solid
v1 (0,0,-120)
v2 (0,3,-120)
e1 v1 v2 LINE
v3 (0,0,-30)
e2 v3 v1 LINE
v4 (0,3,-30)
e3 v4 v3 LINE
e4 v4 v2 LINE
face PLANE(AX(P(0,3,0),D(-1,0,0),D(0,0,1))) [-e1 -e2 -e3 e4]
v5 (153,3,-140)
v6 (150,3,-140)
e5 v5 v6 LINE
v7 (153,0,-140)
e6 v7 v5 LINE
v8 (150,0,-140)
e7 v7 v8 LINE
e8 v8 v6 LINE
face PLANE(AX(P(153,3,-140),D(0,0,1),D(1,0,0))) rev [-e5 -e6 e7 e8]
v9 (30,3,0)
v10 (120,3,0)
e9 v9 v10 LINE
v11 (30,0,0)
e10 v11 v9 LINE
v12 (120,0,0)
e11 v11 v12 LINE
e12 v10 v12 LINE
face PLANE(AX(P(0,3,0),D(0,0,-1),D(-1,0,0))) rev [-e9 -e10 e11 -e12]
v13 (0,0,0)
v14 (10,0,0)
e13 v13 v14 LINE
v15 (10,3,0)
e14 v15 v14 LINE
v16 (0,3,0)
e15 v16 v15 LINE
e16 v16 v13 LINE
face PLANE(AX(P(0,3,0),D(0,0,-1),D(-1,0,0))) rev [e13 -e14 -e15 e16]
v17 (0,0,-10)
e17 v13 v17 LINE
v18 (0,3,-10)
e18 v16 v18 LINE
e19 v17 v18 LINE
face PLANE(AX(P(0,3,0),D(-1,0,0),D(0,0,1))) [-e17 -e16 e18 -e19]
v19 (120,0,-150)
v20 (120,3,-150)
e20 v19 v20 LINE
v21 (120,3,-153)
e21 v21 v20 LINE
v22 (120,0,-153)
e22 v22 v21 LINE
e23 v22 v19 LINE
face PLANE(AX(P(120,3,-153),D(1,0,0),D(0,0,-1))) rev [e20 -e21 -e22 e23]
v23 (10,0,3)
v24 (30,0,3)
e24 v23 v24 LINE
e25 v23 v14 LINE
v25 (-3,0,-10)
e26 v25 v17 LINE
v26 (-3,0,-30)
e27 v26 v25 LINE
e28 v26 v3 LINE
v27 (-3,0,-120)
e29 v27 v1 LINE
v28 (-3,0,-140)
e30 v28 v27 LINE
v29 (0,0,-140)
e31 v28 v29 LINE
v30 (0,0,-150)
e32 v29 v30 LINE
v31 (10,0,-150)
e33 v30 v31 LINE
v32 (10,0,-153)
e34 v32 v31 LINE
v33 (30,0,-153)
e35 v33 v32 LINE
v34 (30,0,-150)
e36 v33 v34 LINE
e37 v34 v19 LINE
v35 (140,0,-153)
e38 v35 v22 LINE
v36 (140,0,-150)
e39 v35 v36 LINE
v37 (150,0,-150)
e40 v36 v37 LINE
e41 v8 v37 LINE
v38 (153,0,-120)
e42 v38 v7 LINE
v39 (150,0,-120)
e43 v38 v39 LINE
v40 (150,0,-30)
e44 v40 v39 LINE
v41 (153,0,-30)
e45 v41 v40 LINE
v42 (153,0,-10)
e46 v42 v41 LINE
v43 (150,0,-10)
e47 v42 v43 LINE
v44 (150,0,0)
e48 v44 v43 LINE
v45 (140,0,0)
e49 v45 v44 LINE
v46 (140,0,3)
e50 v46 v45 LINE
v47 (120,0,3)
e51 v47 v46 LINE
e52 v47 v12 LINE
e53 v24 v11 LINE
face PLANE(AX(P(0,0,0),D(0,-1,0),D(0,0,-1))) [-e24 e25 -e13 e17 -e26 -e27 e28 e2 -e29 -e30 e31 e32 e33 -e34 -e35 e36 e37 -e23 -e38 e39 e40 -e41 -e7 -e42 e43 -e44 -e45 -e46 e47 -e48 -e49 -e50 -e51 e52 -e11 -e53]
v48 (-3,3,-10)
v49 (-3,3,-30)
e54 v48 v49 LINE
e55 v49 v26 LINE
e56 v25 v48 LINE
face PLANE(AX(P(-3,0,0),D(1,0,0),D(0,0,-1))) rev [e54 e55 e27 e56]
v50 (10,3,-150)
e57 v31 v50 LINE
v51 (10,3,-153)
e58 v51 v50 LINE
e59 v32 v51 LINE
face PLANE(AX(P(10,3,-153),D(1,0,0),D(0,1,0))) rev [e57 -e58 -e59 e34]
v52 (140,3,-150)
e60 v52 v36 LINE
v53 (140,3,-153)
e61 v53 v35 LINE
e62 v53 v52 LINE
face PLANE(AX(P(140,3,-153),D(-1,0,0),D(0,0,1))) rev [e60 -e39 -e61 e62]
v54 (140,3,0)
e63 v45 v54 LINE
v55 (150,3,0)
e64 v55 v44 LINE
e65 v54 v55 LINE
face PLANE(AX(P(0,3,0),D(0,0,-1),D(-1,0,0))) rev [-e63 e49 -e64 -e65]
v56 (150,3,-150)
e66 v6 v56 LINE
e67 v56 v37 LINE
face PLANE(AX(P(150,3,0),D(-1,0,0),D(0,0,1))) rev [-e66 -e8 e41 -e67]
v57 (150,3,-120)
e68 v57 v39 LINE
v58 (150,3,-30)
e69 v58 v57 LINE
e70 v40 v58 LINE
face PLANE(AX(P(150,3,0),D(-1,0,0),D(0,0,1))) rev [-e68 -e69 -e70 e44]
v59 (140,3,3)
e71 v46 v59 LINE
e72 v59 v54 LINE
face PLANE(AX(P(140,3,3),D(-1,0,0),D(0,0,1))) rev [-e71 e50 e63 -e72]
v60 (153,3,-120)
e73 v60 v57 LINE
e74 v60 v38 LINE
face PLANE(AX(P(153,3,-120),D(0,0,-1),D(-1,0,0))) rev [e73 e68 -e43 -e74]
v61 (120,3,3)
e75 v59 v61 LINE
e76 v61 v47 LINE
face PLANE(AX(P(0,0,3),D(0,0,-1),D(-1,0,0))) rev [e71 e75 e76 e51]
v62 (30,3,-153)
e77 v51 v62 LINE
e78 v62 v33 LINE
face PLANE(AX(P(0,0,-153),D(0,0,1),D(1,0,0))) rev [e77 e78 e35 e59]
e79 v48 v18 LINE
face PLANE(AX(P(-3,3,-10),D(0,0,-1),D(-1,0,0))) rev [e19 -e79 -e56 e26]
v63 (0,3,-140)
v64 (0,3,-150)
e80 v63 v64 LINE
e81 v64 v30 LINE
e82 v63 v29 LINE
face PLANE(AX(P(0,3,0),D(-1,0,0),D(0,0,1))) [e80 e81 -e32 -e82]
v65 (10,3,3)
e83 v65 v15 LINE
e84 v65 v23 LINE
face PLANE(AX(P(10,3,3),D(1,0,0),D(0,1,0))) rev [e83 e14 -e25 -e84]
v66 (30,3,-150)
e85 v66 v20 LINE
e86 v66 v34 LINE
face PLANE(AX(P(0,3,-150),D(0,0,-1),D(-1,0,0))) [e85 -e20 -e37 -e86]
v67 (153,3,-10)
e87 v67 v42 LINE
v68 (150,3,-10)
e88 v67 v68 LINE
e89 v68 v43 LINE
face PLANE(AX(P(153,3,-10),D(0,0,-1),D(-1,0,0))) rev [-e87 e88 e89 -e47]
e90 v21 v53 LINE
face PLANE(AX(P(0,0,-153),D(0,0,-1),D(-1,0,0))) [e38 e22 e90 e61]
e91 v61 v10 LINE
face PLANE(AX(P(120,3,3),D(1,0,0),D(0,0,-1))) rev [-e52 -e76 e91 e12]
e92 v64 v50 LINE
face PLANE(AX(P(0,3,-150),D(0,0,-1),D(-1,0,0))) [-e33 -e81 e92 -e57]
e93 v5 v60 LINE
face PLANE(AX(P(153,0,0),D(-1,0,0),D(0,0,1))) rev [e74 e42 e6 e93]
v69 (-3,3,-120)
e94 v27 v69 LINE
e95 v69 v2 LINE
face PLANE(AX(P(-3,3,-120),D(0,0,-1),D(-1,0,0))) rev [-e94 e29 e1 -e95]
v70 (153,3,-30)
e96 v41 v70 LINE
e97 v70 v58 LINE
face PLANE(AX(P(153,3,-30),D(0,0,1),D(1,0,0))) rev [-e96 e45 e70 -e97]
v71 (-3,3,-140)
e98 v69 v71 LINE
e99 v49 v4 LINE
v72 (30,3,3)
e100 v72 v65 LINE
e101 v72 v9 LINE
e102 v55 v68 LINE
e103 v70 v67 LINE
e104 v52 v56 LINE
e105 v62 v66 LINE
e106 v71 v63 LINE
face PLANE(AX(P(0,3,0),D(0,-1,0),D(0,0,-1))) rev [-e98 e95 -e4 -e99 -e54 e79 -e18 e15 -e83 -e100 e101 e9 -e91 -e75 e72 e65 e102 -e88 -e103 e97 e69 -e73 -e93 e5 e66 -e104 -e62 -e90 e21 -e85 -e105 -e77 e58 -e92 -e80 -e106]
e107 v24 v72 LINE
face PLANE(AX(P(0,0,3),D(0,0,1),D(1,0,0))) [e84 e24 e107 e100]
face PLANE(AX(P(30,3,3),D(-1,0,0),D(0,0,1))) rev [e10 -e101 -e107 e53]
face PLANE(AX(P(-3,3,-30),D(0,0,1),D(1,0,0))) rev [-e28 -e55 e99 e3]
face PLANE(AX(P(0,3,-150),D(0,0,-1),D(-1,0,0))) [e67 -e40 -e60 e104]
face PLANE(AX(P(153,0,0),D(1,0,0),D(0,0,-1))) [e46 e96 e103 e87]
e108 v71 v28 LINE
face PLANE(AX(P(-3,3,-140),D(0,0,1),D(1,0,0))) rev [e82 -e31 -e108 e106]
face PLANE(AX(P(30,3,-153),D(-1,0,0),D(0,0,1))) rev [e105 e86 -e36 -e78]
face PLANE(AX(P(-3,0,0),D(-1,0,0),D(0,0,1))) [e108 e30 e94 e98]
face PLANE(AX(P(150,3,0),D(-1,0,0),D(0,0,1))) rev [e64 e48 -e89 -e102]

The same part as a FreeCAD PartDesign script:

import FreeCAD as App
import Part
import Sketcher
from FreeCAD import Vector


def add_polygon(sketch, points):
    """Adds a closed chain of lines whose ends are joined by coincident constraints."""
    first, n = sketch.GeometryCount, len(points)
    for a, b in zip(points, points[1:] + points[:1]):
        sketch.addGeometry(Part.LineSegment(App.Vector(*a, 0), App.Vector(*b, 0)), False)
    for i in range(n):
        sketch.addConstraint(Sketcher.Constraint("Coincident", first + i, 2, first + (i + 1) % n, 1))

doc = App.newDocument("Part")
body = doc.addObject("PartDesign::Body", "Body")

sketch1 = body.newObject("Sketcher::SketchObject", "Sketch")
sketch1.AttachmentSupport = (doc.getObject("XZ_Plane"), [""])
sketch1.MapMode = "FlatFace"
add_polygon(sketch1, [(0, -150), (0, 0), (150, 0), (150, -150)])
sketch1.addConstraint(Sketcher.Constraint("Vertical", 0))
sketch1.addConstraint(Sketcher.Constraint("Horizontal", 1))
sketch1.addConstraint(Sketcher.Constraint("Vertical", 2))
sketch1.addConstraint(Sketcher.Constraint("Horizontal", 3))
sketch1.addConstraint(Sketcher.Constraint("Coincident", 0, 2, -1, 1))
sketch1.addConstraint(Sketcher.Constraint("Equal", 3, 0))
sketch1.addConstraint(Sketcher.Constraint("DistanceX", 1, 1, 1, 2, 150.0))
pad1 = body.newObject("PartDesign::Pad", "Pad")
pad1.Profile = sketch1
pad1.Length = 3
pad1.Reversed = True

sketch2 = body.newObject("Sketcher::SketchObject", "Sketch001")
sketch2.AttachmentSupport = (doc.getObject("YZ_Plane"), [""])
sketch2.MapMode = "FlatFace"
add_polygon(sketch2, [(3, -30), (0, -30), (0, -10), (3, -10)])
sketch2.addConstraint(Sketcher.Constraint("Horizontal", 0))
sketch2.addConstraint(Sketcher.Constraint("Vertical", 1))
sketch2.addConstraint(Sketcher.Constraint("Horizontal", 2))
sketch2.addConstraint(Sketcher.Constraint("Vertical", 3))
sketch2.addConstraint(Sketcher.Constraint("PointOnObject", 0, 2, -2))
sketch2.addConstraint(Sketcher.Constraint("DistanceX", 0, 2, 0, 1, 3.0))
sketch2.addConstraint(Sketcher.Constraint("DistanceY", 1, 1, 1, 2, 20.0))
sketch2.addConstraint(Sketcher.Constraint("DistanceY", 0, 2, -1, 1, 30.0))
pad2 = body.newObject("PartDesign::Pad", "Pad001")
pad2.Profile = sketch2
pad2.Length = 3
pad2.Reversed = True

sketch3 = body.newObject("Sketcher::SketchObject", "Sketch002")
sketch3.AttachmentSupport = (doc.getObject("XY_Plane"), [""])
sketch3.MapMode = "FlatFace"
add_polygon(sketch3, [(10, 3), (10, 0), (30, 0), (30, 3)])
sketch3.addConstraint(Sketcher.Constraint("Vertical", 0))
sketch3.addConstraint(Sketcher.Constraint("Horizontal", 1))
sketch3.addConstraint(Sketcher.Constraint("Vertical", 2))
sketch3.addConstraint(Sketcher.Constraint("Horizontal", 3))
sketch3.addConstraint(Sketcher.Constraint("PointOnObject", 0, 2, -1))
sketch3.addConstraint(Sketcher.Constraint("DistanceX", 1, 1, 1, 2, 20.0))
sketch3.addConstraint(Sketcher.Constraint("DistanceY", 0, 2, 0, 1, 3.0))
sketch3.addConstraint(Sketcher.Constraint("DistanceX", -1, 1, 0, 2, 10.0))
pad3 = body.newObject("PartDesign::Pad", "Pad002")
pad3.Profile = sketch3
pad3.Length = 3

sketch4 = body.newObject("Sketcher::SketchObject", "Sketch003")
sketch4.AttachmentSupport = (doc.getObject("XY_Plane"), [""])
sketch4.MapMode = "FlatFace"
add_polygon(sketch4, [(120, 3), (120, 0), (140, 0), (140, 3)])
sketch4.addConstraint(Sketcher.Constraint("Vertical", 0))
sketch4.addConstraint(Sketcher.Constraint("Horizontal", 1))
sketch4.addConstraint(Sketcher.Constraint("Vertical", 2))
sketch4.addConstraint(Sketcher.Constraint("Horizontal", 3))
sketch4.addConstraint(Sketcher.Constraint("PointOnObject", 0, 2, -1))
sketch4.addConstraint(Sketcher.Constraint("DistanceX", 1, 1, 1, 2, 20.0))
sketch4.addConstraint(Sketcher.Constraint("DistanceY", 0, 2, 0, 1, 3.0))
sketch4.addConstraint(Sketcher.Constraint("DistanceX", -1, 1, 0, 2, 120.0))
pad4 = body.newObject("PartDesign::Pad", "Pad003")
pad4.Profile = sketch4
pad4.Length = 3

sketch5 = body.newObject("Sketcher::SketchObject", "Sketch004")
sketch5.AttachmentSupport = (doc.getObject("YZ_Plane"), [""])
sketch5.MapMode = "FlatFace"
sketch5.AttachmentOffset = App.Placement(Vector(0, 0, 150), App.Rotation())
add_polygon(sketch5, [(3, -10), (0, -10), (0, -30), (3, -30)])
sketch5.addConstraint(Sketcher.Constraint("Horizontal", 0))
sketch5.addConstraint(Sketcher.Constraint("Vertical", 1))
sketch5.addConstraint(Sketcher.Constraint("Horizontal", 2))
sketch5.addConstraint(Sketcher.Constraint("Vertical", 3))
sketch5.addConstraint(Sketcher.Constraint("PointOnObject", 0, 2, -2))
sketch5.addConstraint(Sketcher.Constraint("DistanceX", 0, 2, 0, 1, 3.0))
sketch5.addConstraint(Sketcher.Constraint("DistanceY", 1, 2, 1, 1, 20.0))
sketch5.addConstraint(Sketcher.Constraint("DistanceY", 0, 2, -1, 1, 10.0))
pad5 = body.newObject("PartDesign::Pad", "Pad004")
pad5.Profile = sketch5
pad5.Length = 3

sketch6 = body.newObject("Sketcher::SketchObject", "Sketch005")
sketch6.AttachmentSupport = (doc.getObject("YZ_Plane"), [""])
sketch6.MapMode = "FlatFace"
sketch6.AttachmentOffset = App.Placement(Vector(0, 0, 150), App.Rotation())
add_polygon(sketch6, [(3, -120), (0, -120), (0, -140), (3, -140)])
sketch6.addConstraint(Sketcher.Constraint("Horizontal", 0))
sketch6.addConstraint(Sketcher.Constraint("Vertical", 1))
sketch6.addConstraint(Sketcher.Constraint("Horizontal", 2))
sketch6.addConstraint(Sketcher.Constraint("Vertical", 3))
sketch6.addConstraint(Sketcher.Constraint("PointOnObject", 0, 2, -2))
sketch6.addConstraint(Sketcher.Constraint("DistanceX", 0, 2, 0, 1, 3.0))
sketch6.addConstraint(Sketcher.Constraint("DistanceY", 1, 2, 1, 1, 20.0))
sketch6.addConstraint(Sketcher.Constraint("DistanceY", 0, 2, -1, 1, 120.0))
pad6 = body.newObject("PartDesign::Pad", "Pad005")
pad6.Profile = sketch6
pad6.Length = 3

sketch7 = body.newObject("Sketcher::SketchObject", "Sketch006")
sketch7.AttachmentSupport = (doc.getObject("XY_Plane"), [""])
sketch7.MapMode = "FlatFace"
sketch7.AttachmentOffset = App.Placement(Vector(0, 0, -150), App.Rotation())
add_polygon(sketch7, [(140, 3), (140, 0), (120, 0), (120, 3)])
sketch7.addConstraint(Sketcher.Constraint("Vertical", 0))
sketch7.addConstraint(Sketcher.Constraint("Horizontal", 1))
sketch7.addConstraint(Sketcher.Constraint("Vertical", 2))
sketch7.addConstraint(Sketcher.Constraint("Horizontal", 3))
sketch7.addConstraint(Sketcher.Constraint("PointOnObject", 0, 2, -1))
sketch7.addConstraint(Sketcher.Constraint("DistanceX", 1, 2, 1, 1, 20.0))
sketch7.addConstraint(Sketcher.Constraint("DistanceY", 0, 2, 0, 1, 3.0))
sketch7.addConstraint(Sketcher.Constraint("DistanceX", -1, 1, 0, 2, 140.0))
pad7 = body.newObject("PartDesign::Pad", "Pad006")
pad7.Profile = sketch7
pad7.Length = 3
pad7.Reversed = True

sketch8 = body.newObject("Sketcher::SketchObject", "Sketch007")
sketch8.AttachmentSupport = (doc.getObject("XY_Plane"), [""])
sketch8.MapMode = "FlatFace"
sketch8.AttachmentOffset = App.Placement(Vector(0, 0, -150), App.Rotation())
add_polygon(sketch8, [(30, 3), (30, 0), (10, 0), (10, 3)])
sketch8.addConstraint(Sketcher.Constraint("Vertical", 0))
sketch8.addConstraint(Sketcher.Constraint("Horizontal", 1))
sketch8.addConstraint(Sketcher.Constraint("Vertical", 2))
sketch8.addConstraint(Sketcher.Constraint("Horizontal", 3))
sketch8.addConstraint(Sketcher.Constraint("PointOnObject", 0, 2, -1))
sketch8.addConstraint(Sketcher.Constraint("DistanceX", 1, 2, 1, 1, 20.0))
sketch8.addConstraint(Sketcher.Constraint("DistanceY", 0, 2, 0, 1, 3.0))
sketch8.addConstraint(Sketcher.Constraint("DistanceX", -1, 1, 0, 2, 30.0))
pad8 = body.newObject("PartDesign::Pad", "Pad007")
pad8.Profile = sketch8
pad8.Length = 3
pad8.Reversed = True

sketch9 = body.newObject("Sketcher::SketchObject", "Sketch008")
sketch9.AttachmentSupport = (doc.getObject("YZ_Plane"), [""])
sketch9.MapMode = "FlatFace"
add_polygon(sketch9, [(3, -140), (0, -140), (0, -120), (3, -120)])
sketch9.addConstraint(Sketcher.Constraint("Horizontal", 0))
sketch9.addConstraint(Sketcher.Constraint("Vertical", 1))
sketch9.addConstraint(Sketcher.Constraint("Horizontal", 2))
sketch9.addConstraint(Sketcher.Constraint("Vertical", 3))
sketch9.addConstraint(Sketcher.Constraint("PointOnObject", 0, 2, -2))
sketch9.addConstraint(Sketcher.Constraint("DistanceX", 0, 2, 0, 1, 3.0))
sketch9.addConstraint(Sketcher.Constraint("DistanceY", 1, 1, 1, 2, 20.0))
sketch9.addConstraint(Sketcher.Constraint("DistanceY", 0, 2, -1, 1, 140.0))
pad9 = body.newObject("PartDesign::Pad", "Pad008")
pad9.Profile = sketch9
pad9.Length = 3
pad9.Reversed = True

doc.recompute()
